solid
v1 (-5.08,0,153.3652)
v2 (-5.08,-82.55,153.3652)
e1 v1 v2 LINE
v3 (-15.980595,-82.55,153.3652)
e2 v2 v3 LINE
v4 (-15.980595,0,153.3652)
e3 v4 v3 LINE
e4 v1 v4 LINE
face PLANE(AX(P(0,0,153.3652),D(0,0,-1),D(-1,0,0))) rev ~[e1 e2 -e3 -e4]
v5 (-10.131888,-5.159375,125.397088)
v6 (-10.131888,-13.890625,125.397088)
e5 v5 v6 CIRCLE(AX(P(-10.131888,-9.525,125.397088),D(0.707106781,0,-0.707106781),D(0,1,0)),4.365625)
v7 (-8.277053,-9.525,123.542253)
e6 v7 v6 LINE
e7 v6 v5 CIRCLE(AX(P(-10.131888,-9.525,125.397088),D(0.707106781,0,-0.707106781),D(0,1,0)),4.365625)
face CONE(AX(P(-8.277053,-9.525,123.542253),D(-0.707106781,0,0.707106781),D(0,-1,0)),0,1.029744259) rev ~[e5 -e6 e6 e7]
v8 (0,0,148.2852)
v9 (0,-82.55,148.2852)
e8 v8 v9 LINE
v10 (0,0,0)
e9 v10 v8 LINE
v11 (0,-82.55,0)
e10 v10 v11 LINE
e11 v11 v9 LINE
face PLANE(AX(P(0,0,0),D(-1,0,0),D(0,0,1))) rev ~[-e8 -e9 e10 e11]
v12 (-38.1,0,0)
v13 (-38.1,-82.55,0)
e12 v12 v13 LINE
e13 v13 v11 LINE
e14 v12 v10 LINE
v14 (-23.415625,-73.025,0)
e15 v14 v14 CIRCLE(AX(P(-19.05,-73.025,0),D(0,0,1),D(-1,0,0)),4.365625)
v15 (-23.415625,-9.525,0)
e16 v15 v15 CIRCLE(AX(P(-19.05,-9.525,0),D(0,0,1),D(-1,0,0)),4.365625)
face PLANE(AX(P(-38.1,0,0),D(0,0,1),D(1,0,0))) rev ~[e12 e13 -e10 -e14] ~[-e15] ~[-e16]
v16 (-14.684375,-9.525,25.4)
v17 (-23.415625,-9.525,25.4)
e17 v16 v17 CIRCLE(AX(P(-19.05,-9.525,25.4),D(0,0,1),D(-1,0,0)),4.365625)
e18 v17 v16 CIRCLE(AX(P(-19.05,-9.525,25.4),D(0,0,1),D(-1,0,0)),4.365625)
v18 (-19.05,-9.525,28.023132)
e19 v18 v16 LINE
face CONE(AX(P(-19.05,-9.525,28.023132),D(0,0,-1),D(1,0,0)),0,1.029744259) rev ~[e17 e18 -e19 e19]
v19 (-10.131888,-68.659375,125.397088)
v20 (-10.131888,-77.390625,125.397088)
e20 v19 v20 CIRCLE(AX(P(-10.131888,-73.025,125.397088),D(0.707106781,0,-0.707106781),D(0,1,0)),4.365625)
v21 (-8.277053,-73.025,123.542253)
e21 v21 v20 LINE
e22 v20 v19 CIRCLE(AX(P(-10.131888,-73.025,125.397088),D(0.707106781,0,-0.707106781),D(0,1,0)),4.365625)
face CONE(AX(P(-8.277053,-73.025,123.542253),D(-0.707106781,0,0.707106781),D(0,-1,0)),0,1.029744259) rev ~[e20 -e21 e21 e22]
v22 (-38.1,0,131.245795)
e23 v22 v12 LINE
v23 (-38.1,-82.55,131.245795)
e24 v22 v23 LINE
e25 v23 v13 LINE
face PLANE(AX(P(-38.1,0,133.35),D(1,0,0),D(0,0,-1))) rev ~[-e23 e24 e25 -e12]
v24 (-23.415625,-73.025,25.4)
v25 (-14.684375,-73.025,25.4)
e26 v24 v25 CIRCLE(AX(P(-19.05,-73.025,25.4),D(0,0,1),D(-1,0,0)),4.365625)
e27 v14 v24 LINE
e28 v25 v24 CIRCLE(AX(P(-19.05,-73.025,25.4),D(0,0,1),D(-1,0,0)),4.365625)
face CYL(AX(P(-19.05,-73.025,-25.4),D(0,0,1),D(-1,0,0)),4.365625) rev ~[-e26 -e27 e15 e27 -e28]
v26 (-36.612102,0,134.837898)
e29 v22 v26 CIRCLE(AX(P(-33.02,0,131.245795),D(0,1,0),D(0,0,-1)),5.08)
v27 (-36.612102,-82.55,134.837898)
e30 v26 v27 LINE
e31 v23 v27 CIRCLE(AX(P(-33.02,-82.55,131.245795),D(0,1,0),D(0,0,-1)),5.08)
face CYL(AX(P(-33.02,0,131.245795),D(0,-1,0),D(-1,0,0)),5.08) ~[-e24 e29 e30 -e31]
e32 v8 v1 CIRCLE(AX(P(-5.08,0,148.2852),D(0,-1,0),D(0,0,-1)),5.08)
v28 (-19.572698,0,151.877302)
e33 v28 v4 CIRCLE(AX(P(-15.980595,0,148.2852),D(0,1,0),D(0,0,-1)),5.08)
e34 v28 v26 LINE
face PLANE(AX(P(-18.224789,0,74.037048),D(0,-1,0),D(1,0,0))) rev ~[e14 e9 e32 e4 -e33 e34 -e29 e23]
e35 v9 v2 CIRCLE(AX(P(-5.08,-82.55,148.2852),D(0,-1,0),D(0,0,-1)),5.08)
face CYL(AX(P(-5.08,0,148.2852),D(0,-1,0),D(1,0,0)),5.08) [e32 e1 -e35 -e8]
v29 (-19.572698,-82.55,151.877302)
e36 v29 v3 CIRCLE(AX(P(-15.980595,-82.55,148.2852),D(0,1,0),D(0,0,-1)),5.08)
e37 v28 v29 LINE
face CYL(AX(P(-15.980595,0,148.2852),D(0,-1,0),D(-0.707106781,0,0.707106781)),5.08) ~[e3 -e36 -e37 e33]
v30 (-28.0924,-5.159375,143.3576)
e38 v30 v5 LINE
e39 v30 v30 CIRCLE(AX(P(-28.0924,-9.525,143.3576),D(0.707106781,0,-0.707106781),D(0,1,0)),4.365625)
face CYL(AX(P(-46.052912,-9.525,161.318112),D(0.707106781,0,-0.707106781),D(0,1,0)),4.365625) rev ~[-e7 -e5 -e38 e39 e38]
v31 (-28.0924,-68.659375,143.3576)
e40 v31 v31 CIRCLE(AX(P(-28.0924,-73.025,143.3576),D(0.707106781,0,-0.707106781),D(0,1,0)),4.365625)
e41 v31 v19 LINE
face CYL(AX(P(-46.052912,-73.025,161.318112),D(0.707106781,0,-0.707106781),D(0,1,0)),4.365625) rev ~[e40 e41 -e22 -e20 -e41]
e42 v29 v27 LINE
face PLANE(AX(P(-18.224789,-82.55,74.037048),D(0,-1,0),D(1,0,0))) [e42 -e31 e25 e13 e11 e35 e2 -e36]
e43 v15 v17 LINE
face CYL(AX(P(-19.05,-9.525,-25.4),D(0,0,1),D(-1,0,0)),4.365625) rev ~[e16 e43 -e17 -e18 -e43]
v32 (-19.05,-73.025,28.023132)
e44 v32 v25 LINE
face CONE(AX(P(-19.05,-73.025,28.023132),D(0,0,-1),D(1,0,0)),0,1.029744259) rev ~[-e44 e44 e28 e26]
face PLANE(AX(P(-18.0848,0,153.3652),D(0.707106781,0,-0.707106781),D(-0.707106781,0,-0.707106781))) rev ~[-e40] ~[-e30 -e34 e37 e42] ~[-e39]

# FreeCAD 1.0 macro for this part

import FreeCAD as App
import Part
import Sketcher
Q = App.Units.Quantity


def edges_at(feature, points):
    """Names of the edges that pass closest to the given points."""
    edges = feature.Shape.Edges
    near = lambda p: min(range(len(edges)), key=lambda i: edges[i].distToShape(Part.Vertex(*p))[0])
    return sorted({f"Edge{near(p) + 1}" for p in points})


def add_polygon(sketch, points):
    """Adds a closed chain of lines whose ends are joined by coincident constraints."""
    first, n = sketch.GeometryCount, len(points)
    for a, b in zip(points, points[1:] + points[:1]):
        sketch.addGeometry(Part.LineSegment(App.Vector(*a, 0), App.Vector(*b, 0)), False)
    for i in range(n):
        sketch.addConstraint(Sketcher.Constraint("Coincident", first + i, 2, first + (i + 1) % n, 1))

doc = App.newDocument("Part")
body = doc.addObject("PartDesign::Body", "Body")

sketch1 = body.newObject("Sketcher::SketchObject", "Sketch")
sketch1.AttachmentSupport = (doc.getObject("XZ_Plane"), [""])
sketch1.MapMode = "FlatFace"
add_polygon(sketch1, [(-38, 0), (0, 0), (0, 153), (-18, 153), (-38, 133)])
sketch1.addConstraint([
    Sketcher.Constraint("Horizontal", 0),
    Sketcher.Constraint("Vertical", 1),
    Sketcher.Constraint("Horizontal", 2),
    Sketcher.Constraint("Vertical", 4),
    Sketcher.Constraint("Coincident", 0, 2, -1, 1),
    Sketcher.Constraint("DistanceX", 0, 1, 0, 2, Q("1.5 in")),
    Sketcher.Constraint("Angle", 3, Q("-135 deg")),
    Sketcher.Constraint("DistanceY", 4, 2, 4, 1, Q("5.25 in")),
    Sketcher.Constraint("DistanceX", 2, 2, 2, 1, Q("0.712 in")),
])
pad1 = body.newObject("PartDesign::Pad", "Pad")
pad1.Profile = sketch1
pad1.Length = Q("3.25 in")

sketch2 = body.newObject("Sketcher::SketchObject", "Sketch001")
sketch2.Placement = App.Placement(App.Vector(-85.725, 0, 85.725), App.Rotation(App.Vector(0, -1, 0), App.Vector(0.707106781, 0, 0.707106781), App.Vector(-0.707106781, 0, 0.707106781), "ZXY"))
sketch2.addGeometry([
    Part.Circle(App.Vector(73, 81.5, 0), App.Vector(0, 0, 1), 4.4),
    Part.Circle(App.Vector(9.5, 81.5, 0), App.Vector(0, 0, 1), 4.4),
], False)
sketch2.addConstraint([
    Sketcher.Constraint("Equal", 0, 1),
    Sketcher.Constraint("Horizontal", 0, 3, 1, 3),
    Sketcher.Constraint("Diameter", 0, Q("0.34375 in")),
    Sketcher.Constraint("DistanceX", 1, 3, 0, 3, Q("2.5 in")),
    Sketcher.Constraint("DistanceX", -1, 1, 0, 3, Q("2.875 in")),
    Sketcher.Constraint("DistanceY", -1, 1, 0, 3, Q("81.504805 mm")),
])
doc.recompute()
hole = body.newObject("PartDesign::Hole", "Hole")
hole.Profile = sketch2
hole.ThreadType = "None"
hole.Diameter = Q("0.34375 in")
hole.DepthType = "Dimension"
hole.Depth = Q("1 in")
hole.DrillPoint = "Angled"
hole.DrillPointAngle = 118

sketch3 = body.newObject("Sketcher::SketchObject", "Sketch002")
sketch3.AttachmentSupport = (doc.getObject("XY_Plane"), [""])
sketch3.MapMode = "FlatFace"
sketch3.addGeometry([
    Part.Circle(App.Vector(-19.1, -73, 0), App.Vector(0, 0, 1), 4.4),
    Part.Circle(App.Vector(-19.1, -9.5, 0), App.Vector(0, 0, 1), 4.4),
], False)
sketch3.addConstraint([
    Sketcher.Constraint("Equal", 0, 1),
    Sketcher.Constraint("Vertical", 0, 3, 1, 3),
    Sketcher.Constraint("Diameter", 0, Q("0.34375 in")),
    Sketcher.Constraint("DistanceY", 0, 3, 1, 3, Q("2.5 in")),
    Sketcher.Constraint("DistanceX", 0, 3, -1, 1, Q("0.75 in")),
    Sketcher.Constraint("DistanceY", 0, 3, -1, 1, Q("2.875 in")),
])
doc.recompute()
hole2 = body.newObject("PartDesign::Hole", "Hole001")
hole2.Profile = sketch3
hole2.ThreadType = "None"
hole2.Diameter = Q("0.34375 in")
hole2.DepthType = "Dimension"
hole2.Depth = Q("1 in")
hole2.DrillPoint = "Angled"
hole2.DrillPointAngle = 118
hole2.Reversed = True
doc.recompute()

fillet = body.newObject("PartDesign::Fillet", "Fillet")
fillet.Base = (hole2, edges_at(hole2, [(-38.1, -41.275, 133.35), (-18.085, -41.275, 153.365), (0, -41.275, 153.365)]))
fillet.Radius = Q("0.2 in")

doc.recompute()
